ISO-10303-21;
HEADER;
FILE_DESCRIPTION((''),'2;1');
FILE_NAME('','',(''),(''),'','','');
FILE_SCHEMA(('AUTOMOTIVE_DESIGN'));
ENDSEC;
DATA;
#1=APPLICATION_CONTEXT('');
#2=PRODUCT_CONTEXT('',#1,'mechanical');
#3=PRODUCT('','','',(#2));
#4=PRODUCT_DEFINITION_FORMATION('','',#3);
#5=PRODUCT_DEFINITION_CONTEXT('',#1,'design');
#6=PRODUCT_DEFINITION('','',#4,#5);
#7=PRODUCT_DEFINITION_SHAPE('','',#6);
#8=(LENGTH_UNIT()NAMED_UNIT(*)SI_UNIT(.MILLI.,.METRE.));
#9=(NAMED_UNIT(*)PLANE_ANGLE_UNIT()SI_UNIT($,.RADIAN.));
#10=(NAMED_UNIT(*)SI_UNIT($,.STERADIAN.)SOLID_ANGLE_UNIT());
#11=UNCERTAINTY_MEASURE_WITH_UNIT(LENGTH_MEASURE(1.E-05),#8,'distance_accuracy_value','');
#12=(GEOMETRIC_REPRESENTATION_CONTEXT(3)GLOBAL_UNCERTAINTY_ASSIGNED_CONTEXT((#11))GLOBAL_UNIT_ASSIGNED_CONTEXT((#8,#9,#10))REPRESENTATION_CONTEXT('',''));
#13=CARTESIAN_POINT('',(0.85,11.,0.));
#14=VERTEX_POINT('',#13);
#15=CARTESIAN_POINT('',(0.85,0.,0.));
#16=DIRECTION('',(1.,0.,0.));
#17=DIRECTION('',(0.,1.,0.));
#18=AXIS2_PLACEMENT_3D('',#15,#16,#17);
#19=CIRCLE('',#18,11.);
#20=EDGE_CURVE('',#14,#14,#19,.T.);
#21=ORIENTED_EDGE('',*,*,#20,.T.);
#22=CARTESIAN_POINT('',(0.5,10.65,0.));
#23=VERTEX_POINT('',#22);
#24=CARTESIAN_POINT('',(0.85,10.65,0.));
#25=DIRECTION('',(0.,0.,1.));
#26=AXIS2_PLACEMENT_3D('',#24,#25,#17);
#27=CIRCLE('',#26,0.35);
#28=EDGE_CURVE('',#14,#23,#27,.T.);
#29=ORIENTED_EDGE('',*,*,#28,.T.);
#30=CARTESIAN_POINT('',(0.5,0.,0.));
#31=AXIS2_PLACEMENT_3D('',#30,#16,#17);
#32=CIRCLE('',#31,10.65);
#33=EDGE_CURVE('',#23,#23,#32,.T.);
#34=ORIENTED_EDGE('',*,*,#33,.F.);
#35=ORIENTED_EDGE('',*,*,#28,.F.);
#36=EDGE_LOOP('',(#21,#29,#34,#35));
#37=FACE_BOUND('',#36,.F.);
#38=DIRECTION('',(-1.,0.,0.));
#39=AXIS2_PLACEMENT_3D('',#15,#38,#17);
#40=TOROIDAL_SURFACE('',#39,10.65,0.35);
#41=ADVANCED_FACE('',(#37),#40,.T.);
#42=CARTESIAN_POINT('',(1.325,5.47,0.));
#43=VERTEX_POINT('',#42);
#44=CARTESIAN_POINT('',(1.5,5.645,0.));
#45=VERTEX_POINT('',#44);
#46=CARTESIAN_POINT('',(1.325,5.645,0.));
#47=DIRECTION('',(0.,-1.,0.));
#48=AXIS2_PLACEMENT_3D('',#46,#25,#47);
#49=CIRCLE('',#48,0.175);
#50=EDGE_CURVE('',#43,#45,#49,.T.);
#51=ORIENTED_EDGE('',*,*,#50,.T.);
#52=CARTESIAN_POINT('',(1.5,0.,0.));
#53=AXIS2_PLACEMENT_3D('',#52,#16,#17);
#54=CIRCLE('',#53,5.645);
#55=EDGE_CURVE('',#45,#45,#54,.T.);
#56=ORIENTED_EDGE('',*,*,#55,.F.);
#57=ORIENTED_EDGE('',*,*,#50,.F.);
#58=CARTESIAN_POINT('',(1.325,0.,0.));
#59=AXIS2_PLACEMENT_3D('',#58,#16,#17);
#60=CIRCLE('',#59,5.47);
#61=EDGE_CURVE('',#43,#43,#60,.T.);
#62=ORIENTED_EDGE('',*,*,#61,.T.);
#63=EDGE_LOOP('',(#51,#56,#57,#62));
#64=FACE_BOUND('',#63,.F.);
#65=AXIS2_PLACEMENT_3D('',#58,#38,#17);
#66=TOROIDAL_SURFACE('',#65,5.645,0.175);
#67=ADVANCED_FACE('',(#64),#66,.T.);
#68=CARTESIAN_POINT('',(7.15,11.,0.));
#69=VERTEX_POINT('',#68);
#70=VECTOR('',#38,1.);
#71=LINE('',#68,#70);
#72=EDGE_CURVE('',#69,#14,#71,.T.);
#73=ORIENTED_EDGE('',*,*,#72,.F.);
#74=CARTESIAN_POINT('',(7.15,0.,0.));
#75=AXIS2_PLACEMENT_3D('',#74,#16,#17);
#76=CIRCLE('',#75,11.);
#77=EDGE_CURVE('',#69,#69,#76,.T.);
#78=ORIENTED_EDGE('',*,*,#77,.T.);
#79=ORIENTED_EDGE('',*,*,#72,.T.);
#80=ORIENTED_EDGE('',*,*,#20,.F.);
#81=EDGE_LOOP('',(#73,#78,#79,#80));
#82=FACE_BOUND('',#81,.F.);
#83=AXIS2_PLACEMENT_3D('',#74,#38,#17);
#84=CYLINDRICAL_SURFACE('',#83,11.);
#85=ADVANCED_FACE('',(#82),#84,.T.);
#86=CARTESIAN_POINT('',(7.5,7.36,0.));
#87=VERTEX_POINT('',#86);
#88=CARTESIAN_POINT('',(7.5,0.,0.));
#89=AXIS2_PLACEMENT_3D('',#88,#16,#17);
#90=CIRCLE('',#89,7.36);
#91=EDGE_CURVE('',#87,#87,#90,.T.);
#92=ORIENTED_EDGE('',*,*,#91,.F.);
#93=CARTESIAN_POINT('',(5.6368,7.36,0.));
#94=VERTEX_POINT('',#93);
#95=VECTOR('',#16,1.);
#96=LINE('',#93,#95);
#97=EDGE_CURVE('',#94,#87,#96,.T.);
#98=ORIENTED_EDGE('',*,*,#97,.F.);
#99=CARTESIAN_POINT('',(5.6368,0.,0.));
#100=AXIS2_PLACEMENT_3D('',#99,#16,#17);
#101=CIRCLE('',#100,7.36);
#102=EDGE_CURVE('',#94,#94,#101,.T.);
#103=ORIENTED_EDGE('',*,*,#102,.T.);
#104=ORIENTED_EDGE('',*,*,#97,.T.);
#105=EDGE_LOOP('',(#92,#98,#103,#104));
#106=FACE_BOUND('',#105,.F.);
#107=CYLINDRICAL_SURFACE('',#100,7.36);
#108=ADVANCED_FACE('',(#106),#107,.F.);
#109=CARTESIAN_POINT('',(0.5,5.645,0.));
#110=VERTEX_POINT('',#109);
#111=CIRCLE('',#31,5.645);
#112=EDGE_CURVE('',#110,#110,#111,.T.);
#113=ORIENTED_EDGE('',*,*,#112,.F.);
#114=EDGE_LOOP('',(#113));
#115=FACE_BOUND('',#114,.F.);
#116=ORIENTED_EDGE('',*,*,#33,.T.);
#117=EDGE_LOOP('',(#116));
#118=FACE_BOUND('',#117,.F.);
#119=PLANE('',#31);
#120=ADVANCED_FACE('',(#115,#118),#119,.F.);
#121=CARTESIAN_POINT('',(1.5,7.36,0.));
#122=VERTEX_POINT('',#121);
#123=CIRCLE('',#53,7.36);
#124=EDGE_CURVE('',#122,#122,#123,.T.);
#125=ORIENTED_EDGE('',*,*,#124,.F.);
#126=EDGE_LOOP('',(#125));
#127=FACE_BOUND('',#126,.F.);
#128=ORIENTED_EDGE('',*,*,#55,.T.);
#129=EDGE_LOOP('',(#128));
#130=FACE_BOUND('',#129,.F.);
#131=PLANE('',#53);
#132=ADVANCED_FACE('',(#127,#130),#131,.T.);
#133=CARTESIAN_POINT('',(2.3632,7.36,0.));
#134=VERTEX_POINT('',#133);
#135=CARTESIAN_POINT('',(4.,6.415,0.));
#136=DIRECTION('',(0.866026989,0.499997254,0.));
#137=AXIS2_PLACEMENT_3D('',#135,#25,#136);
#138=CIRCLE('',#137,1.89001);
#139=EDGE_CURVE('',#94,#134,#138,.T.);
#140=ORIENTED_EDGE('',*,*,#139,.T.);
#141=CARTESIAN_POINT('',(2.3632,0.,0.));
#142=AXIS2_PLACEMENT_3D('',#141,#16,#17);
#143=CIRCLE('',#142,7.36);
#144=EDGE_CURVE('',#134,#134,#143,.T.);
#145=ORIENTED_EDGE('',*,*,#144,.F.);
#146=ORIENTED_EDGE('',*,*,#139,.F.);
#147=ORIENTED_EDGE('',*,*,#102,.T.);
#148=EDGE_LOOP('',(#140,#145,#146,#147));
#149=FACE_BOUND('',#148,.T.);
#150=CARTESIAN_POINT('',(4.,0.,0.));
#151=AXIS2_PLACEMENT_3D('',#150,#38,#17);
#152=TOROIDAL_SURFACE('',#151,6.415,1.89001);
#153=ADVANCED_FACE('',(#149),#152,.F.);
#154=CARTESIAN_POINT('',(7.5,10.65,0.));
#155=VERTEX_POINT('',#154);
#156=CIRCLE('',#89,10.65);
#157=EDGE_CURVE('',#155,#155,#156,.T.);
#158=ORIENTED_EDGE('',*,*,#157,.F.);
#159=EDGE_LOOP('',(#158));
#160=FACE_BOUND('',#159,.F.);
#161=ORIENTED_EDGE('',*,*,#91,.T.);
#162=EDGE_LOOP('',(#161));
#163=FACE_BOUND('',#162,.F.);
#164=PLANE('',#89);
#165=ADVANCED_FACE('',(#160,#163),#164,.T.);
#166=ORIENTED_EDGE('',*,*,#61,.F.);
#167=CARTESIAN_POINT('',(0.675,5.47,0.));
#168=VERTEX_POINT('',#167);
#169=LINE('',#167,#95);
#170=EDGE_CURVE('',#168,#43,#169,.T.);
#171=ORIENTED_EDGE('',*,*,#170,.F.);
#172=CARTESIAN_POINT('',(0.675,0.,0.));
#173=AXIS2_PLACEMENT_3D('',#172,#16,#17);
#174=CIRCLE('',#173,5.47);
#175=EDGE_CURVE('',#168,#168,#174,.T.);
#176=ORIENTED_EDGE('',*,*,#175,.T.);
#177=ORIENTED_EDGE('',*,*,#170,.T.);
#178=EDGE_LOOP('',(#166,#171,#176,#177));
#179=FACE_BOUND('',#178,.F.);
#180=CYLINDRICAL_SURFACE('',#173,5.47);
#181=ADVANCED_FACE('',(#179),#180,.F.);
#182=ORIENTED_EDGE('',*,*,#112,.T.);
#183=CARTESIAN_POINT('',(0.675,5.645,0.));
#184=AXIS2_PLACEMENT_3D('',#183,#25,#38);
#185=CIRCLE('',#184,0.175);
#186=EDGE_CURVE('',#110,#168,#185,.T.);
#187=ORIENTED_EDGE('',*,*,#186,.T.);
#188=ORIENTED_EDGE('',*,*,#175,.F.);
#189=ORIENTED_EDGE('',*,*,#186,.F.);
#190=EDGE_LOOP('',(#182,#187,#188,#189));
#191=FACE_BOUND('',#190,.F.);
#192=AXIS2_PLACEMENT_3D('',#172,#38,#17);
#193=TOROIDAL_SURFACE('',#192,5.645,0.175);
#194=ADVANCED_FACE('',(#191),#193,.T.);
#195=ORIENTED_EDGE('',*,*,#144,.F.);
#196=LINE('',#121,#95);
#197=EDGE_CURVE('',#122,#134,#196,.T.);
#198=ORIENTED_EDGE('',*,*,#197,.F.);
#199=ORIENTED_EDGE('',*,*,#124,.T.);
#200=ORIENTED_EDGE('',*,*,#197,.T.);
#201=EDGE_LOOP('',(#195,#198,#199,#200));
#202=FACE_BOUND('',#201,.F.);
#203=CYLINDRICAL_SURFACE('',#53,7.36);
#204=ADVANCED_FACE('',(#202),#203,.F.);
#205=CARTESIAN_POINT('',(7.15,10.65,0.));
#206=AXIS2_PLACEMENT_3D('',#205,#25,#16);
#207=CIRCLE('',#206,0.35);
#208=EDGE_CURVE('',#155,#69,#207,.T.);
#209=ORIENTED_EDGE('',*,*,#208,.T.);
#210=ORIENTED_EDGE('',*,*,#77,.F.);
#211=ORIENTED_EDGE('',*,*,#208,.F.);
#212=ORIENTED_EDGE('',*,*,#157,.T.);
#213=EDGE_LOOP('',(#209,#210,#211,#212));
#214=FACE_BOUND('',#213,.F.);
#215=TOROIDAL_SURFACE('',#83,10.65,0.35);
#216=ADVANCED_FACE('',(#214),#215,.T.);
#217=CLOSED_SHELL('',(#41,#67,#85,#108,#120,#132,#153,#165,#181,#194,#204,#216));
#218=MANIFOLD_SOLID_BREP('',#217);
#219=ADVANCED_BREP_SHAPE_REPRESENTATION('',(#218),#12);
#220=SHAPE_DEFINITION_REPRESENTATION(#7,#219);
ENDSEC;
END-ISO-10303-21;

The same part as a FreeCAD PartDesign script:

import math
import FreeCAD as App
import Part
import Sketcher

V = App.Vector

doc = App.newDocument("Part")
params = doc.addObject("Spreadsheet::Sheet", "Params")
for row, (alias, value) in enumerate([
    ("sketch1_radius", "0.35 mm"),
    ("sketch1_radius2", "1.89 mm"),
    ("sketch1_width", "6.3 mm"),
    ("sketch1_height", "3.29 mm"),
    ("revolution_angle", "360 deg"),
], start=1):
    params.set(f"A{row}", alias)
    params.set(f"B{row}", "=" + value)
    params.setAlias(f"B{row}", alias)

body = doc.addObject("PartDesign::Body", "Body")

sketch1 = body.newObject("Sketcher::SketchObject", "Sketch")
sketch1.AttachmentSupport = (doc.getObject("XY_Plane"), [""])
sketch1.MapMode = "FlatFace"
sketch1.addGeometry([
    Part.ArcOfCircle(Part.Circle(V(0.85, 10.65, 0), V(0, 0, 1), 0.35), math.radians(90), math.radians(180)),
    Part.LineSegment(V(0.5, 10.65, 0), V(0.5, 5.64, 0)),
    Part.ArcOfCircle(Part.Circle(V(0.68, 5.64, 0), V(0, 0, 1), 0.18), math.radians(180), math.radians(270)),
    Part.LineSegment(V(0.68, 5.47, 0), V(1.32, 5.47, 0)),
    Part.ArcOfCircle(Part.Circle(V(1.32, 5.64, 0), V(0, 0, 1), 0.17), math.radians(-90), math.radians(0)),
    Part.LineSegment(V(1.5, 5.64, 0), V(1.5, 7.36, 0)),
    Part.LineSegment(V(1.5, 7.36, 0), V(2.36, 7.36, 0)),
    Part.ArcOfCircle(Part.Circle(V(4, 6.42, 0), V(0, 0, 1), 1.89), math.radians(30), math.radians(150)),
    Part.LineSegment(V(5.64, 7.36, 0), V(7.5, 7.36, 0)),
    Part.LineSegment(V(7.5, 7.36, 0), V(7.5, 10.65, 0)),
    Part.ArcOfCircle(Part.Circle(V(7.15, 10.65, 0), V(0, 0, 1), 0.35), math.radians(0), math.radians(90)),
    Part.LineSegment(V(7.15, 11, 0), V(0.85, 11, 0)),
], False)
sketch1.addConstraint([
    Sketcher.Constraint("Tangent", 0, 2, 1, 1),
    Sketcher.Constraint("Tangent", 1, 2, 2, 1),
    Sketcher.Constraint("Tangent", 2, 2, 3, 1),
    Sketcher.Constraint("Tangent", 3, 2, 4, 1),
    Sketcher.Constraint("Tangent", 4, 2, 5, 1),
    Sketcher.Constraint("Coincident", 5, 2, 6, 1),
    Sketcher.Constraint("Coincident", 6, 2, 7, 2),
    Sketcher.Constraint("Coincident", 7, 1, 8, 1),
    Sketcher.Constraint("Coincident", 8, 2, 9, 1),
    Sketcher.Constraint("Tangent", 9, 2, 10, 1),
    Sketcher.Constraint("Tangent", 10, 2, 11, 1),
    Sketcher.Constraint("Tangent", 11, 2, 0, 1),
    Sketcher.Constraint("Vertical", 1),
    Sketcher.Constraint("Horizontal", 3),
    Sketcher.Constraint("Vertical", 5),
    Sketcher.Constraint("Horizontal", 6),
    Sketcher.Constraint("Horizontal", 8),
    Sketcher.Constraint("Vertical", 9),
    Sketcher.Constraint("Horizontal", 11),
    Sketcher.Constraint("Equal", 2, 4),
    Sketcher.Constraint("Equal", 0, 10),
    Sketcher.Constraint("Horizontal", 6, 2, 7, 1),
    Sketcher.Constraint("Radius", 0, 0.35),
    Sketcher.Constraint("Radius", 7, 1.89),
    Sketcher.Constraint("DistanceX", 11, 2, 11, 1, 6.3),
    Sketcher.Constraint("DistanceX", -1, 1, 7, 3, 4.0),
    Sketcher.Constraint("DistanceY", -1, 1, 10, 2, 11.0),
    Sketcher.Constraint("Radius", 2, 0.175),
    Sketcher.Constraint("DistanceX", 1, 2, 4, 2, 1.0),
    Sketcher.Constraint("DistanceY", 9, 1, 9, 2, 3.29),
    Sketcher.Constraint("DistanceX", -1, 1, 0, 2, 0.5),
    Sketcher.Constraint("DistanceY", 1, 2, 1, 1, 5.005),
    Sketcher.Constraint("DistanceY", 4, 3, 7, 3, 0.77),
])
sketch1.setExpression("Constraints[22]", "Params.sketch1_radius")
sketch1.setExpression("Constraints[23]", "Params.sketch1_radius2")
sketch1.setExpression("Constraints[24]", "Params.sketch1_width")
sketch1.setExpression("Constraints[29]", "Params.sketch1_height")
revolution = body.newObject("PartDesign::Revolution", "Revolution")
revolution.Profile = sketch1
revolution.ReferenceAxis = (sketch1, ["H_Axis"])
revolution.setExpression("Angle", "Params.revolution_angle")

doc.recompute()
